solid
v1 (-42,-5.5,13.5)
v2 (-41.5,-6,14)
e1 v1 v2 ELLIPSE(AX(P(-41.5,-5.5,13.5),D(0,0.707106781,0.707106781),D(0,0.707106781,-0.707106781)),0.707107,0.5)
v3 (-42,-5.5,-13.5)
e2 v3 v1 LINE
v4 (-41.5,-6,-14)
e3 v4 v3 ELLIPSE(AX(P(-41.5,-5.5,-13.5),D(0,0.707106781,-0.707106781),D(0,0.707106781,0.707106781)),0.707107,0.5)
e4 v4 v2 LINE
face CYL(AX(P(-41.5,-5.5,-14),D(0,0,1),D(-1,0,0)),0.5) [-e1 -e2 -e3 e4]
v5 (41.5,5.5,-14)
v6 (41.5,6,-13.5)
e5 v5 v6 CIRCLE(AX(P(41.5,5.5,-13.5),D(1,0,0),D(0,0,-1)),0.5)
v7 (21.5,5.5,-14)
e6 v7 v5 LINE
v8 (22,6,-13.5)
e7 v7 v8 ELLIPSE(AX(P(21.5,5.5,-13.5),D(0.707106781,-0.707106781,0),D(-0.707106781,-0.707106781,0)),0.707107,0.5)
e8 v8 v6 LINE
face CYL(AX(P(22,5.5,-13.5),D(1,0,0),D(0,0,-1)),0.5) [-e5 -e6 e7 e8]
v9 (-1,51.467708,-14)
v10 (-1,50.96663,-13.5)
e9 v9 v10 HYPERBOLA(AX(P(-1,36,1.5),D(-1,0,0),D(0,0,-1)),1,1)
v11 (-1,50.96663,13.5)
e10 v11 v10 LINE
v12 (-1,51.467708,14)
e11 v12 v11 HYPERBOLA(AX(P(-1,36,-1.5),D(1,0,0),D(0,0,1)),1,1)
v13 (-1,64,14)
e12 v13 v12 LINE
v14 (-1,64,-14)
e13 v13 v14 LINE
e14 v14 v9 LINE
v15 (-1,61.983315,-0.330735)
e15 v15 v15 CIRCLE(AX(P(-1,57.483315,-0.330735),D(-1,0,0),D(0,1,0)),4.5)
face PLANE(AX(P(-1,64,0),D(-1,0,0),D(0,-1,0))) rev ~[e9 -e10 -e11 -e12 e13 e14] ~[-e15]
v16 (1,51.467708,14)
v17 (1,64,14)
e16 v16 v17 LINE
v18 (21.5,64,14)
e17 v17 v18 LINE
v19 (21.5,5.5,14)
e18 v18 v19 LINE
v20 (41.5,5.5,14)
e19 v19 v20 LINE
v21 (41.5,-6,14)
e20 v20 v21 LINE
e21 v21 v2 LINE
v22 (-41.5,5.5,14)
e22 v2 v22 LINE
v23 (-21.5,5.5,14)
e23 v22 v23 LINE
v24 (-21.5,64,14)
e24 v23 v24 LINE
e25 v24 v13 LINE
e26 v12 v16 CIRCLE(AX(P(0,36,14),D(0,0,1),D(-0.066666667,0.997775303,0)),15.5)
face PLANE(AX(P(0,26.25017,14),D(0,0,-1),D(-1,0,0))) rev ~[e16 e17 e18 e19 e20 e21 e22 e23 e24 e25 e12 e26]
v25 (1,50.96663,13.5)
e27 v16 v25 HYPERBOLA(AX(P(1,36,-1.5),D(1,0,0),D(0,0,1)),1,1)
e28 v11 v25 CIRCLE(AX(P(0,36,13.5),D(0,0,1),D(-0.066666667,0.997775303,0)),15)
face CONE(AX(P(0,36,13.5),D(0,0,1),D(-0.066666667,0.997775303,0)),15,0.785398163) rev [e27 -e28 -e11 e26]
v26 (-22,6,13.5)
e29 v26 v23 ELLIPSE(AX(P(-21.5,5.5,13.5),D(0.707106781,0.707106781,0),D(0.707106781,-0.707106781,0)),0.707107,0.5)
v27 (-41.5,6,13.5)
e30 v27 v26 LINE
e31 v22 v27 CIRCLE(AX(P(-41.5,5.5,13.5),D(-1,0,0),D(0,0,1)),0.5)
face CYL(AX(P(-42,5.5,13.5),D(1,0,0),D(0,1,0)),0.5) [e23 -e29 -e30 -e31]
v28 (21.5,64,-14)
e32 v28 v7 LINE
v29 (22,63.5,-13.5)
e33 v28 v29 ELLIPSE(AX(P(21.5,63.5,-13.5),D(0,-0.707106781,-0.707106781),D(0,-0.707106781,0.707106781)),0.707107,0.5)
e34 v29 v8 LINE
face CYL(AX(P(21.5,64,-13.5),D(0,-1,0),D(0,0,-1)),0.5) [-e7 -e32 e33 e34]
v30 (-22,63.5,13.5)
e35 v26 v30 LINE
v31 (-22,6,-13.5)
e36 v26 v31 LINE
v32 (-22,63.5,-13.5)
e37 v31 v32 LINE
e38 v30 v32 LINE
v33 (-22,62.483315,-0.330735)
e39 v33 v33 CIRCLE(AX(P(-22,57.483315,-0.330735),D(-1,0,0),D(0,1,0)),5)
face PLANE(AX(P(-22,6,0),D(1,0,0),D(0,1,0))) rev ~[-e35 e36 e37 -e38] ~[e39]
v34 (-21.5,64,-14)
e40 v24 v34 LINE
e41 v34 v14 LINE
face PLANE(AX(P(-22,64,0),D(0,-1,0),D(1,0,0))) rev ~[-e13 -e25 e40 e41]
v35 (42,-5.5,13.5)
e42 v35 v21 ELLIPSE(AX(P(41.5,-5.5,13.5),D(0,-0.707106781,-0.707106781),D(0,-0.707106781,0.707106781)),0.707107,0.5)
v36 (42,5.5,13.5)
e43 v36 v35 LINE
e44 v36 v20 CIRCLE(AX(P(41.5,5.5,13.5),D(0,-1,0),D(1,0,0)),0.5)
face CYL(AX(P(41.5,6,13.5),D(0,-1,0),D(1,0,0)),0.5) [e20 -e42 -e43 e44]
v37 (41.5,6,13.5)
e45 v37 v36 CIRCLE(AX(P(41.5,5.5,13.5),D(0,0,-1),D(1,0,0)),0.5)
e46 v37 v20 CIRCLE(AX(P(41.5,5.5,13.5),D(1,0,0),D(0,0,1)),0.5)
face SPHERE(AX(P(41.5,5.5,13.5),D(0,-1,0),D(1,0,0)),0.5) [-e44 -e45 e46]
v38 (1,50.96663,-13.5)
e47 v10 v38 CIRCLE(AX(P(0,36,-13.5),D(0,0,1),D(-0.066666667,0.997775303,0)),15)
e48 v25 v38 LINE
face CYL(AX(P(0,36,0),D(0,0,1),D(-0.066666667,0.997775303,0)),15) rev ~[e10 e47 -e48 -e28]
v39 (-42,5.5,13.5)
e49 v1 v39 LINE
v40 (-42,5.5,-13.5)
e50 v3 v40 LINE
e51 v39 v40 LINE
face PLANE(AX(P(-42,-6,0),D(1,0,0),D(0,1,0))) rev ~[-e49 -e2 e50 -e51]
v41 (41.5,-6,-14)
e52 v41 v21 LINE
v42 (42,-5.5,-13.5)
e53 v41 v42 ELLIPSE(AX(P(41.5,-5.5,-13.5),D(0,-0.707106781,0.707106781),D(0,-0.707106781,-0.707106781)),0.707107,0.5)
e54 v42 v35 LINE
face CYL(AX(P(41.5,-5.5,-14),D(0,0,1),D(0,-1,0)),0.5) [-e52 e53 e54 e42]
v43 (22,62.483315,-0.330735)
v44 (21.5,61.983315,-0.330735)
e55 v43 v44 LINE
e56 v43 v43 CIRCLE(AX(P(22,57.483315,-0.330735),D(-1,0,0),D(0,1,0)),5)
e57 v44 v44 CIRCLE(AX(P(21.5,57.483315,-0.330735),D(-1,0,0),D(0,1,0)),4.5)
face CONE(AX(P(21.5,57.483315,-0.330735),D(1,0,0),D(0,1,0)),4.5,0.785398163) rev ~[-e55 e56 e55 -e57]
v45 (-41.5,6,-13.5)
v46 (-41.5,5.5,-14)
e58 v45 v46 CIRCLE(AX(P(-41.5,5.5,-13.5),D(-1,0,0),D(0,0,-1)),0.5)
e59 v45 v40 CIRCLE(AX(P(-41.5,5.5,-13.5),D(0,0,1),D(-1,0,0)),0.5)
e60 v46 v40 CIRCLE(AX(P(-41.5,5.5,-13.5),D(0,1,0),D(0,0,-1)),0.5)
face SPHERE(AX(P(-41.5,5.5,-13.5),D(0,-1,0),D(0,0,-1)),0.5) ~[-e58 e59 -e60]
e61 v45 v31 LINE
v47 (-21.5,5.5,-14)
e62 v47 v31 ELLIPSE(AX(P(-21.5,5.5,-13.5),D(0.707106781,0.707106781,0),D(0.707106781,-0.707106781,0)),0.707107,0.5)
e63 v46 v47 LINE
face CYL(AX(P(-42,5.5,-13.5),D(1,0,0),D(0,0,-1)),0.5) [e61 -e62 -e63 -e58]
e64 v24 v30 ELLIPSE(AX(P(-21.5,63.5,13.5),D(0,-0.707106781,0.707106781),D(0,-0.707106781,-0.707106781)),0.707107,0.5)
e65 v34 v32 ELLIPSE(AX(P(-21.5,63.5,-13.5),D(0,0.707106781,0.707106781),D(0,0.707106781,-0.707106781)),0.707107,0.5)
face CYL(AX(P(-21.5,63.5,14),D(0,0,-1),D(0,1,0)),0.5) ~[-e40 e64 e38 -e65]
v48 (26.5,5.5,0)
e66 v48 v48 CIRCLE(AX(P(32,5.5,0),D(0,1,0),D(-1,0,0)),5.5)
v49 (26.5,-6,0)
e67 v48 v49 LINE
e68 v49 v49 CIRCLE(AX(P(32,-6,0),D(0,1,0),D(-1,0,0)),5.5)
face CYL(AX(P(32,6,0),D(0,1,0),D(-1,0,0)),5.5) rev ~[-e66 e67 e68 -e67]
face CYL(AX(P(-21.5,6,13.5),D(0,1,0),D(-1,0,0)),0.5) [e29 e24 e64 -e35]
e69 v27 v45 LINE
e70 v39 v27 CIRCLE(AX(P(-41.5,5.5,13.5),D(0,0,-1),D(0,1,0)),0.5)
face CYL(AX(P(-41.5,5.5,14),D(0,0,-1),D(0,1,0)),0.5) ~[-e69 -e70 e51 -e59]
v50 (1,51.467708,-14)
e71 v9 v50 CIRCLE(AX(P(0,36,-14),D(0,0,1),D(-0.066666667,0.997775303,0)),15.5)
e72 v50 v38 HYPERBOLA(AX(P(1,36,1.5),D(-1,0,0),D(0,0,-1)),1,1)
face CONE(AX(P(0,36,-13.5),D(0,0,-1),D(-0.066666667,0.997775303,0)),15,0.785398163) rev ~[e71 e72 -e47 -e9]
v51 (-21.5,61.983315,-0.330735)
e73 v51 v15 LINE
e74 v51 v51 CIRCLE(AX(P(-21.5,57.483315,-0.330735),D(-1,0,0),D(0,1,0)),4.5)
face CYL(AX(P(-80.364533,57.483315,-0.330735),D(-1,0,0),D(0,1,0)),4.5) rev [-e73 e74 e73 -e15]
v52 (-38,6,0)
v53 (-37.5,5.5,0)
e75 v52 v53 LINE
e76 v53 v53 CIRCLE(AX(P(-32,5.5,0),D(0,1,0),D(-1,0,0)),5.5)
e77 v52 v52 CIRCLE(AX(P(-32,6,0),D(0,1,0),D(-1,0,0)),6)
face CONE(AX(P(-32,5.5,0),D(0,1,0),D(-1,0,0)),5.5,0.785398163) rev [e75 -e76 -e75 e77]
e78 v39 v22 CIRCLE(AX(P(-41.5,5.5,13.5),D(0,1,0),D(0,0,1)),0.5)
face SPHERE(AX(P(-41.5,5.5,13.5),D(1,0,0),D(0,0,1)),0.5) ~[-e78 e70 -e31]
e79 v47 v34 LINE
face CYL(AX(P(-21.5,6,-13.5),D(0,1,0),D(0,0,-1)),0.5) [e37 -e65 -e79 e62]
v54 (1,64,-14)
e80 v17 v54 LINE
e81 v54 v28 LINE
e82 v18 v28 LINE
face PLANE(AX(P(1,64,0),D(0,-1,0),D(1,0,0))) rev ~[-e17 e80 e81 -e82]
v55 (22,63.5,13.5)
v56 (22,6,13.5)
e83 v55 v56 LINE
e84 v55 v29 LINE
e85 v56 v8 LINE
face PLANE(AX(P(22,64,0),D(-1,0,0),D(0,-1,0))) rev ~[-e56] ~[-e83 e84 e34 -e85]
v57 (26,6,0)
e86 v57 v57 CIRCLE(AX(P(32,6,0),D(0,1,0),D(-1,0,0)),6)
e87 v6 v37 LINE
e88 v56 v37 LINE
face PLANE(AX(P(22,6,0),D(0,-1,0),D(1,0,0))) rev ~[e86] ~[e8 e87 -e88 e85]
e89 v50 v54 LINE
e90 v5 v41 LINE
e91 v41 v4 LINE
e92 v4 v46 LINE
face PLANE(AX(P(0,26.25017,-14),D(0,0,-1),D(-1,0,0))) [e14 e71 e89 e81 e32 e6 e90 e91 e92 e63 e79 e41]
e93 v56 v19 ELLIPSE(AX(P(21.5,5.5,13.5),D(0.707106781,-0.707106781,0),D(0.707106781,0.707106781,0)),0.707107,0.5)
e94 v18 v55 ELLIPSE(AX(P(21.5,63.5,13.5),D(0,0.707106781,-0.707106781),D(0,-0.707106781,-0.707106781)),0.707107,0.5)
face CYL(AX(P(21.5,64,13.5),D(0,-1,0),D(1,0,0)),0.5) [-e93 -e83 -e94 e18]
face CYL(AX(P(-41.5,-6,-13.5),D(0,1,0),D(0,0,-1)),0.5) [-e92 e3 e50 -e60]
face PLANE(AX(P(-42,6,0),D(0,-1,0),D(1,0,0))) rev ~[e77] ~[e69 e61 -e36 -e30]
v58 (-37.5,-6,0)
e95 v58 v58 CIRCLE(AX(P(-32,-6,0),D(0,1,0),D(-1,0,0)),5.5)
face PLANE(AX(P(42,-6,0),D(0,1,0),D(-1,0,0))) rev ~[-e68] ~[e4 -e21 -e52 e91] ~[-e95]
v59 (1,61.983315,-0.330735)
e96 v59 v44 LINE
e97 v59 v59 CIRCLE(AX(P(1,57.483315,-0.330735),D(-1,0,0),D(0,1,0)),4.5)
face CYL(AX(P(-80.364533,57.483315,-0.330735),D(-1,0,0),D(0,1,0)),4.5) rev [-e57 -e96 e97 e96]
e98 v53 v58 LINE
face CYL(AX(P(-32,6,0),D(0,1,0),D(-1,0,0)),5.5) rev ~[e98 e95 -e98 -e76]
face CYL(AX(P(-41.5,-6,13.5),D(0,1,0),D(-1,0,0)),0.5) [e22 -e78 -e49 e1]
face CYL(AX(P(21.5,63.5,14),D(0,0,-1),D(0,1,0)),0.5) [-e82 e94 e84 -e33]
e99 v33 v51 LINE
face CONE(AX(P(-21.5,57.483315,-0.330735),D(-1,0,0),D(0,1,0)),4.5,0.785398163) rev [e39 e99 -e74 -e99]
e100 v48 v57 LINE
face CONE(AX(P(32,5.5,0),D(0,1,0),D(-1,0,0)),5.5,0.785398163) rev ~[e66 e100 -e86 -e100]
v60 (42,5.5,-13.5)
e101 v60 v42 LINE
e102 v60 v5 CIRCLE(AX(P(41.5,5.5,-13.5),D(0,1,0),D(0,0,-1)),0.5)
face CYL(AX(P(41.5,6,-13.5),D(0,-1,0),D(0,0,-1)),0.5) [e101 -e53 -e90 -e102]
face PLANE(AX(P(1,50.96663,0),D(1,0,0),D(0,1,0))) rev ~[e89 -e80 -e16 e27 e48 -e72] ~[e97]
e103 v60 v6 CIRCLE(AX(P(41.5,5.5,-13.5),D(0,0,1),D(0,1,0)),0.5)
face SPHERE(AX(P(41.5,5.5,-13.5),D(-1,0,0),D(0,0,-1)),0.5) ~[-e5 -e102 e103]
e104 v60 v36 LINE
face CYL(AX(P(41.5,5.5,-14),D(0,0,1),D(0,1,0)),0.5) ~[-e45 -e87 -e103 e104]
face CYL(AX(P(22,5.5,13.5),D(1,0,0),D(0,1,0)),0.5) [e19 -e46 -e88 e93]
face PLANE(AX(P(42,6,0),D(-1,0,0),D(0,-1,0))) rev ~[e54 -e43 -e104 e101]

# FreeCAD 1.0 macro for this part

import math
import FreeCAD as App
import Part
import Sketcher


def edges_at(feature, points):
    """Names of the edges that pass closest to the given points."""
    edges = feature.Shape.Edges
    near = lambda p: min(range(len(edges)), key=lambda i: edges[i].distToShape(Part.Vertex(*p))[0])
    return sorted({f"Edge{near(p) + 1}" for p in points})

doc = App.newDocument("Part")
body = doc.addObject("PartDesign::Body", "Body")

sketch1 = body.newObject("Sketcher::SketchObject", "Sketch")
sketch1.AttachmentSupport = (doc.getObject("XY_Plane"), [""])
sketch1.MapMode = "FlatFace"
sketch1.addGeometry([
    Part.LineSegment(App.Vector(-42, 6, 0), App.Vector(-42, -6, 0)),
    Part.LineSegment(App.Vector(-42, -6, 0), App.Vector(42, -6, 0)),
    Part.LineSegment(App.Vector(42, -6, 0), App.Vector(42, 6, 0)),
    Part.LineSegment(App.Vector(42, 6, 0), App.Vector(22, 6, 0)),
    Part.LineSegment(App.Vector(22, 6, 0), App.Vector(22, 64, 0)),
    Part.LineSegment(App.Vector(22, 64, 0), App.Vector(1, 64, 0)),
    Part.LineSegment(App.Vector(1, 64, 0), App.Vector(1, 51, 0)),
    Part.ArcOfCircle(Part.Circle(App.Vector(0, 36, 0), App.Vector(0, 0, 1), 15), math.radians(94), math.radians(446)),
    Part.LineSegment(App.Vector(-1, 51, 0), App.Vector(-1, 64, 0)),
    Part.LineSegment(App.Vector(-1, 64, 0), App.Vector(-22, 64, 0)),
    Part.LineSegment(App.Vector(-22, 64, 0), App.Vector(-22, 6, 0)),
    Part.LineSegment(App.Vector(-22, 6, 0), App.Vector(-42, 6, 0)),
], False)
sketch1.addConstraint([
    Sketcher.Constraint("Coincident", 0, 2, 1, 1),
    Sketcher.Constraint("Coincident", 1, 2, 2, 1),
    Sketcher.Constraint("Coincident", 2, 2, 3, 1),
    Sketcher.Constraint("Coincident", 3, 2, 4, 1),
    Sketcher.Constraint("Coincident", 4, 2, 5, 1),
    Sketcher.Constraint("Coincident", 5, 2, 6, 1),
    Sketcher.Constraint("Coincident", 6, 2, 7, 2),
    Sketcher.Constraint("Coincident", 7, 1, 8, 1),
    Sketcher.Constraint("Coincident", 8, 2, 9, 1),
    Sketcher.Constraint("Coincident", 9, 2, 10, 1),
    Sketcher.Constraint("Coincident", 10, 2, 11, 1),
    Sketcher.Constraint("Coincident", 11, 2, 0, 1),
    Sketcher.Constraint("Vertical", 0),
    Sketcher.Constraint("Horizontal", 1),
    Sketcher.Constraint("Vertical", 2),
    Sketcher.Constraint("Horizontal", 3),
    Sketcher.Constraint("Vertical", 4),
    Sketcher.Constraint("Horizontal", 5),
    Sketcher.Constraint("Vertical", 6),
    Sketcher.Constraint("Vertical", 8),
    Sketcher.Constraint("Horizontal", 9),
    Sketcher.Constraint("Vertical", 10),
    Sketcher.Constraint("Horizontal", 11),
    Sketcher.Constraint("Symmetric", 0, 2, 2, 2, -1, 1),
    Sketcher.Constraint("Symmetric", 6, 2, 7, 1, -2),
    Sketcher.Constraint("Symmetric", 4, 2, 9, 2, -2),
    Sketcher.Constraint("Horizontal", 3, 2, 10, 2),
    Sketcher.Constraint("Radius", 7, 15.0),
    Sketcher.Constraint("DistanceX", 1, 1, 1, 2, 84.0),
    Sketcher.Constraint("DistanceX", 3, 2, 3, 1, 20.0),
    Sketcher.Constraint("DistanceX", 5, 2, 5, 1, 21.0),
    Sketcher.Constraint("DistanceY", 0, 2, 0, 1, 12.0),
    Sketcher.Constraint("DistanceY", 4, 1, 4, 2, 58.0),
    Sketcher.Constraint("DistanceY", -1, 1, 7, 3, 36.0),
])
pad1 = body.newObject("PartDesign::Pad", "Pad")
pad1.Profile = sketch1
pad1.Length = 28
pad1.Midplane = True

sketch2 = body.newObject("Sketcher::SketchObject", "Sketch001")
sketch2.AttachmentSupport = (doc.getObject("XZ_Plane"), [""])
sketch2.MapMode = "FlatFace"
sketch2.AttachmentOffset = App.Placement(App.Vector(0, 0, -6), App.Rotation())
sketch2.addGeometry([
    Part.Circle(App.Vector(32, 0, 0), App.Vector(0, 0, 1), 6),
    Part.Circle(App.Vector(-32, 0, 0), App.Vector(0, 0, 1), 6),
], False)
sketch2.addConstraint([
    Sketcher.Constraint("Equal", 0, 1),
    Sketcher.Constraint("Symmetric", 0, 3, 1, 3, -1, 1),
    Sketcher.Constraint("PointOnObject", 0, 3, -1),
    Sketcher.Constraint("Diameter", 0, 11.0),
    Sketcher.Constraint("DistanceX", -1, 1, 0, 3, 32.0),
])
pocket1 = body.newObject("PartDesign::Pocket", "Pocket")
pocket1.Profile = sketch2
pocket1.Type = "ThroughAll"
pocket1.Reversed = True

sketch3 = body.newObject("Sketcher::SketchObject", "Sketch002")
sketch3.AttachmentSupport = (doc.getObject("YZ_Plane"), [""])
sketch3.MapMode = "FlatFace"
sketch3.AttachmentOffset = App.Placement(App.Vector(0, 0, -1), App.Rotation())
sketch3.addGeometry(Part.Circle(App.Vector(57.5, -0.3, 0), App.Vector(0, 0, 1), 4.5), False)
sketch3.addConstraint([
    Sketcher.Constraint("Diameter", 0, 9.0),
    Sketcher.Constraint("DistanceX", -1, 1, 0, 3, 57.483315),
    Sketcher.Constraint("DistanceY", 0, 3, -1, 1, 0.330735),
])
pocket2 = body.newObject("PartDesign::Pocket", "Pocket001")
pocket2.Profile = sketch3
pocket2.Type = "ThroughAll"
pocket2.Midplane = True
doc.recompute()

chamfer = body.newObject("PartDesign::Chamfer", "Chamfer")
chamfer.Base = (pocket2, edges_at(pocket2, [
    (0, 21, -14),
    (0, 21, 14),
    (37.5, 6, 0),
    (-26.5, 6, 0),
    (-22, 52.983, -0.331),
    (22, 52.983, -0.331),
]))
chamfer.Size = 0.5
doc.recompute()

fillet = body.newObject("PartDesign::Fillet", "Fillet")
fillet.Base = (chamfer, edges_at(chamfer, [
    (-32, 6, 14),
    (22, 35, -14),
    (32, 6, -14),
    (-42, 0, 14),
    (42, 0, -14),
    (-42, 0, -14),
    (-32, 6, -14),
    (-22, 35, -14),
    (42, 0, 14),
    (22, 64, 0),
    (42, 6, 0),
    (42, -6, 0),
    (-42, -6, 0),
    (-42, 6, 0),
    (-22, 64, 0),
    (32, 6, 14),
    (22, 35, 14),
    (-22, 35, 14),
]))
fillet.Radius = 0.5

doc.recompute()
